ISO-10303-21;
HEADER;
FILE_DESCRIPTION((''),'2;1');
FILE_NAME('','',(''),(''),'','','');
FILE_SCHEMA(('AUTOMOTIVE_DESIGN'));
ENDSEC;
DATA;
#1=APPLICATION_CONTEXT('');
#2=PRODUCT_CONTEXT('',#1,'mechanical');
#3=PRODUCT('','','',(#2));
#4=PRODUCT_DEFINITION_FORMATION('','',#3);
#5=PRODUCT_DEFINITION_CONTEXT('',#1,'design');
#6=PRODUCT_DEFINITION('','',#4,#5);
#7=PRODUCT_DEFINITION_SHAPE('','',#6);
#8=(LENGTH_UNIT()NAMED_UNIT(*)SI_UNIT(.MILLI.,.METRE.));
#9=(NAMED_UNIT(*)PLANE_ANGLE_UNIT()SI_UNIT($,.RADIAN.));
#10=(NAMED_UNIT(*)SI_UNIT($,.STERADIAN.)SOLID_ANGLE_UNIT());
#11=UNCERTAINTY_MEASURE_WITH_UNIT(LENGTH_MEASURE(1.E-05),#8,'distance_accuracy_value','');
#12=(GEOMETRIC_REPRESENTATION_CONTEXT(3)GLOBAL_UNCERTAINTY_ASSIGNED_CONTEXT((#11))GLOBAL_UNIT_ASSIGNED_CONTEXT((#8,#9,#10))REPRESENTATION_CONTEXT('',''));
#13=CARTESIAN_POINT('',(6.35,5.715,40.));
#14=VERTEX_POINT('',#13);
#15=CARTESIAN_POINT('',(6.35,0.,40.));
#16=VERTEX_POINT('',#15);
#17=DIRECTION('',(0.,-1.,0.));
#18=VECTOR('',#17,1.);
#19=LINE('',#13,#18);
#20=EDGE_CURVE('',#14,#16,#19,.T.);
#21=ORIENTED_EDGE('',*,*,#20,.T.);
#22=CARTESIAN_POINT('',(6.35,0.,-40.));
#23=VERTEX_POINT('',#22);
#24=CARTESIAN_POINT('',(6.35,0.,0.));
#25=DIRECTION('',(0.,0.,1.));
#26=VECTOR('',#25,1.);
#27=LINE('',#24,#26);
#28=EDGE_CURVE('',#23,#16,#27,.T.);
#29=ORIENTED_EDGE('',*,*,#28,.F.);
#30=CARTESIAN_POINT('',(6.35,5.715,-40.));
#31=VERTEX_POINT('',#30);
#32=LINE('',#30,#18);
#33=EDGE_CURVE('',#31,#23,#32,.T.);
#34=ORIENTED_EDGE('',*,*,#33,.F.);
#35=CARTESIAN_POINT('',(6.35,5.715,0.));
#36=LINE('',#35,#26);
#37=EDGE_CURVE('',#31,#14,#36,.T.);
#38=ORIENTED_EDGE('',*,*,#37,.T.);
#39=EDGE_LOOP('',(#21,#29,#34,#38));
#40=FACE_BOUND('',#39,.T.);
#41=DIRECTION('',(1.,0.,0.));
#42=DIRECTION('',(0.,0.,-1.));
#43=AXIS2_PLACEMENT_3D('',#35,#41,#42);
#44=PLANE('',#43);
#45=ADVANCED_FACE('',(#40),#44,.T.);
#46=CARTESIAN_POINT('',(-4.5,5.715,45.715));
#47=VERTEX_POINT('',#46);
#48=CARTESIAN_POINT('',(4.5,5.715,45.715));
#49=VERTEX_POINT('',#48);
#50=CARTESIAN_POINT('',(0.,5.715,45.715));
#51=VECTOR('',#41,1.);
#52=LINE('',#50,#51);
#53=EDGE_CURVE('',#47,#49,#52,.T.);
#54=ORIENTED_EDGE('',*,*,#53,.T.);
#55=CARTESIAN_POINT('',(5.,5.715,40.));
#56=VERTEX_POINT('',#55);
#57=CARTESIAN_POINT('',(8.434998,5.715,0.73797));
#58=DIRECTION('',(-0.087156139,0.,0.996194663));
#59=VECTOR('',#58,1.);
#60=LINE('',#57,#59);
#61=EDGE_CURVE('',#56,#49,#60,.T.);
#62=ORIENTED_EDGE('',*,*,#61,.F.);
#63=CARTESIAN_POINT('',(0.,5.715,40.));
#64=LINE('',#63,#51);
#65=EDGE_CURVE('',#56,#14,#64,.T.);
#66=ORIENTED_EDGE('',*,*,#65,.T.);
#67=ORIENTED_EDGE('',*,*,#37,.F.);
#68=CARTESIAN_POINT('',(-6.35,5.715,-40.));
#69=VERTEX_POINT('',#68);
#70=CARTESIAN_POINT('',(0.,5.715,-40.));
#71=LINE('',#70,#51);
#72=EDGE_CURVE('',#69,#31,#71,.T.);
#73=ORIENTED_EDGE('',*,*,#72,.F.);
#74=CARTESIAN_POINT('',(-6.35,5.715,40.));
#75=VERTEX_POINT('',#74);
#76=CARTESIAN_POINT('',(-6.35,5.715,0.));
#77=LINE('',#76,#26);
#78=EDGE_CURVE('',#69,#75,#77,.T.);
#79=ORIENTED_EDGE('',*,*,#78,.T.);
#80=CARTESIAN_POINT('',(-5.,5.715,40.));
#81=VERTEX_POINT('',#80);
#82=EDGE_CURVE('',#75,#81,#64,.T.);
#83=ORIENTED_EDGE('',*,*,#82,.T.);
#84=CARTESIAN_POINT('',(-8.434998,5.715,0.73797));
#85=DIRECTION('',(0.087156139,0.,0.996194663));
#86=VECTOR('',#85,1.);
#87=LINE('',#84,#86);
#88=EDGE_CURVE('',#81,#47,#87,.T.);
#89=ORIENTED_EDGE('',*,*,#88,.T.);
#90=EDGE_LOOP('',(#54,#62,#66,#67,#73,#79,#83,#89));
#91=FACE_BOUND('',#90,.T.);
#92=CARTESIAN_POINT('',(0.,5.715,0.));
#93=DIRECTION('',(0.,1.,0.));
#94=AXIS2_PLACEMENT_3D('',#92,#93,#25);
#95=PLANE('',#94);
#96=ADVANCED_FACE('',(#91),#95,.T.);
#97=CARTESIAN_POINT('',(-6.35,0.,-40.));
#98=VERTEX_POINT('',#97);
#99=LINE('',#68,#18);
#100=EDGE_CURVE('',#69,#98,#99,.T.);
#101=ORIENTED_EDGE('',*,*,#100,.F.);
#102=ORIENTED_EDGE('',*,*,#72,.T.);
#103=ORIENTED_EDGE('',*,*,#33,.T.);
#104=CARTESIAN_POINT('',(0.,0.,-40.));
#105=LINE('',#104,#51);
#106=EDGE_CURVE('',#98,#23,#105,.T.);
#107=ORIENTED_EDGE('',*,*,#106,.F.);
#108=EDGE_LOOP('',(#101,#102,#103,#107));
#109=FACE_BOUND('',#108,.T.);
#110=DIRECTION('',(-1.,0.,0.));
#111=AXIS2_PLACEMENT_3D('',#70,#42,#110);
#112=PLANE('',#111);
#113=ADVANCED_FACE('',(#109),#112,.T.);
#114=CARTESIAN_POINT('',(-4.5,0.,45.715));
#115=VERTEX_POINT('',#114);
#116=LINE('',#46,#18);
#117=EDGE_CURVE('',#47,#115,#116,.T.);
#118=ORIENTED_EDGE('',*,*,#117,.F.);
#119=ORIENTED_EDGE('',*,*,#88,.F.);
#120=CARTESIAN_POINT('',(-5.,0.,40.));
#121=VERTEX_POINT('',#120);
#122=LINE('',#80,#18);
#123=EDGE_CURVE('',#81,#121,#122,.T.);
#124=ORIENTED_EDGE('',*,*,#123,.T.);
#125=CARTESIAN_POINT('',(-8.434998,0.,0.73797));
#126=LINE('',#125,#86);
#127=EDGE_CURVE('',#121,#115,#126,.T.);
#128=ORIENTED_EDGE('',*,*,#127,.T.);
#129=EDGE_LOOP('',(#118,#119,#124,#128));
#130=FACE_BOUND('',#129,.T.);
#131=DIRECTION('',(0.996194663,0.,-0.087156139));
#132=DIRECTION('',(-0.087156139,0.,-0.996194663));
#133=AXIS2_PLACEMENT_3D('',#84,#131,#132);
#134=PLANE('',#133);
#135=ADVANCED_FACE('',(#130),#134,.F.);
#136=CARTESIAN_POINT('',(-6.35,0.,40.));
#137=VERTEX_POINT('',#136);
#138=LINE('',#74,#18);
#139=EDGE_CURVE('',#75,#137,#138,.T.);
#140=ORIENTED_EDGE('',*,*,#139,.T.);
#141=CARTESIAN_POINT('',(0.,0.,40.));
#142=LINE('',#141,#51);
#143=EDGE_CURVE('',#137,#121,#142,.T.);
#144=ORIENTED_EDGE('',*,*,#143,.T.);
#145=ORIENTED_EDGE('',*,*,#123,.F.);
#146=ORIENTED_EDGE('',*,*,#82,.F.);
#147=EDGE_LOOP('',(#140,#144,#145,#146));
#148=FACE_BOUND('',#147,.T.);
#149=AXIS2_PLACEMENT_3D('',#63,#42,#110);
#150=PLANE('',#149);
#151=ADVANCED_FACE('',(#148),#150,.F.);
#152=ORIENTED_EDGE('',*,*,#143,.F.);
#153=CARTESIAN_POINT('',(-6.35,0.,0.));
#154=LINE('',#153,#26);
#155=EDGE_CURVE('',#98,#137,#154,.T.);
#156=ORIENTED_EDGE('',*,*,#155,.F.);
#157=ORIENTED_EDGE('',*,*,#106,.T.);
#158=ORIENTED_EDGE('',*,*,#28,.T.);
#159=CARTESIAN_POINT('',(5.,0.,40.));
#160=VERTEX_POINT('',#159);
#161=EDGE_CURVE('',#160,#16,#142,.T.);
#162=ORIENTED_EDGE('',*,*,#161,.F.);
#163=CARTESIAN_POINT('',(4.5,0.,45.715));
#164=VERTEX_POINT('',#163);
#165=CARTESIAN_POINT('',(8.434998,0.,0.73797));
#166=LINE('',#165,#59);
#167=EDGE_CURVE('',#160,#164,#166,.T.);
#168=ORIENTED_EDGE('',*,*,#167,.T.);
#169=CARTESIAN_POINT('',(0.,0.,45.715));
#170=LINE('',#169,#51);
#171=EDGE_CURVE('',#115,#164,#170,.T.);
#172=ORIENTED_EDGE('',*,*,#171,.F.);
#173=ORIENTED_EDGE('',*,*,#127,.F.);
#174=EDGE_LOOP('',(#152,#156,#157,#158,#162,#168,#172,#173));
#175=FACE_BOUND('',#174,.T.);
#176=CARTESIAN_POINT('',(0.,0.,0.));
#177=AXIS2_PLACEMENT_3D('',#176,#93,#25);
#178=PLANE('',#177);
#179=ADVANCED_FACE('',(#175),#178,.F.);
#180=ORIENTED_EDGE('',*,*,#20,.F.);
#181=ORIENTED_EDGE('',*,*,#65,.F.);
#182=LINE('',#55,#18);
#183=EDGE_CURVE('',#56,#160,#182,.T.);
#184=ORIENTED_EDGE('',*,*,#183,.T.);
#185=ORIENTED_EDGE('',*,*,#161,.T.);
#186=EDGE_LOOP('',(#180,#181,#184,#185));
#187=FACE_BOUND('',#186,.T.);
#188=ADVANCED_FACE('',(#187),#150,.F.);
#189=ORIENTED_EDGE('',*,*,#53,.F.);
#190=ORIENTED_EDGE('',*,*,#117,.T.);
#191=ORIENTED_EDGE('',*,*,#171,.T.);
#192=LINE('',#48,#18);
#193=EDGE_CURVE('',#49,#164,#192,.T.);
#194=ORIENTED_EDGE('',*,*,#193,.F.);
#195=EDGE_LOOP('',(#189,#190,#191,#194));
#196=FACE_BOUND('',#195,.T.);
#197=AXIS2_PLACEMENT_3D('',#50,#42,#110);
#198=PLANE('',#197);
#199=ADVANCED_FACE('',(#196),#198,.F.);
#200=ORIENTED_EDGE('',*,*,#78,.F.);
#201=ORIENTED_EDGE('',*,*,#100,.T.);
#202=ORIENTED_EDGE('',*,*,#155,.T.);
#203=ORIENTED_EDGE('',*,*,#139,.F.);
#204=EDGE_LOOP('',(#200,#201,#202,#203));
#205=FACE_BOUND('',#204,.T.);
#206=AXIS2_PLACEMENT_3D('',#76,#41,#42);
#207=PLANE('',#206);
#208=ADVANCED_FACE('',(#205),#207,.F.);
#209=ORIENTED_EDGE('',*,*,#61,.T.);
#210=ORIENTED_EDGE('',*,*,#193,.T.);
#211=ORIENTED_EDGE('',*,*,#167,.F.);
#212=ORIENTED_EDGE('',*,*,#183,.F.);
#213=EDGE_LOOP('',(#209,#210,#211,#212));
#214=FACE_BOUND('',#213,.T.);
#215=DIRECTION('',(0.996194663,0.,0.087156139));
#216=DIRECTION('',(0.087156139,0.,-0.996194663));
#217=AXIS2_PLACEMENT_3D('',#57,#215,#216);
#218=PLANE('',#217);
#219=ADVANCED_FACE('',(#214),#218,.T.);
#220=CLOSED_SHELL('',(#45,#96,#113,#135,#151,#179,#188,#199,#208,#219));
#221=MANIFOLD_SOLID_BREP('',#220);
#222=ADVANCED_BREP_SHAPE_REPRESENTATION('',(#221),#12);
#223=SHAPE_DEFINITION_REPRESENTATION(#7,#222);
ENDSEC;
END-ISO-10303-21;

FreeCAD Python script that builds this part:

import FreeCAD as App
import Part
import Sketcher
from FreeCAD import Vector


def add_polygon(sketch, points):
    """Adds a closed chain of lines whose ends are joined by coincident constraints."""
    first, n = sketch.GeometryCount, len(points)
    for a, b in zip(points, points[1:] + points[:1]):
        sketch.addGeometry(Part.LineSegment(App.Vector(*a, 0), App.Vector(*b, 0)), False)
    for i in range(n):
        sketch.addConstraint(Sketcher.Constraint("Coincident", first + i, 2, first + (i + 1) % n, 1))

doc = App.newDocument("Part")
body = doc.addObject("PartDesign::Body", "Body")

sketch1 = body.newObject("Sketcher::SketchObject", "Sketch")
sketch1.AttachmentSupport = (doc.getObject("XZ_Plane"), [""])
sketch1.MapMode = "FlatFace"
add_polygon(sketch1, [(-6.35, -40), (-6.35, 40), (-5, 40), (-4.5, 45.715), (4.5, 45.715), (5, 40), (6.35, 40), (6.35, -40)])
sketch1.addConstraint([
    Sketcher.Constraint("Vertical", 0),
    Sketcher.Constraint("Horizontal", 1),
    Sketcher.Constraint("Horizontal", 3),
    Sketcher.Constraint("Horizontal", 5),
    Sketcher.Constraint("Vertical", 6),
    Sketcher.Constraint("Horizontal", 7),
    Sketcher.Constraint("Symmetric", 0, 2, 6, 2, -1, 1),
    Sketcher.Constraint("Symmetric", 1, 2, 4, 2, -2),
    Sketcher.Constraint("Equal", 2, 4),
    Sketcher.Constraint("DistanceX", 3, 1, 3, 2, 9.0),
    Sketcher.Constraint("DistanceY", 0, 1, 0, 2, 80.0),
    Sketcher.Constraint("DistanceX", 7, 2, 7, 1, 12.7),
    Sketcher.Constraint("DistanceX", 1, 2, -1, 1, 5.0),
    Sketcher.Constraint("DistanceY", -1, 1, 2, 2, 45.715),
])
pad1 = body.newObject("PartDesign::Pad", "Pad")
pad1.Profile = sketch1
pad1.Length = 5.715
pad1.Reversed = True

doc.recompute()
